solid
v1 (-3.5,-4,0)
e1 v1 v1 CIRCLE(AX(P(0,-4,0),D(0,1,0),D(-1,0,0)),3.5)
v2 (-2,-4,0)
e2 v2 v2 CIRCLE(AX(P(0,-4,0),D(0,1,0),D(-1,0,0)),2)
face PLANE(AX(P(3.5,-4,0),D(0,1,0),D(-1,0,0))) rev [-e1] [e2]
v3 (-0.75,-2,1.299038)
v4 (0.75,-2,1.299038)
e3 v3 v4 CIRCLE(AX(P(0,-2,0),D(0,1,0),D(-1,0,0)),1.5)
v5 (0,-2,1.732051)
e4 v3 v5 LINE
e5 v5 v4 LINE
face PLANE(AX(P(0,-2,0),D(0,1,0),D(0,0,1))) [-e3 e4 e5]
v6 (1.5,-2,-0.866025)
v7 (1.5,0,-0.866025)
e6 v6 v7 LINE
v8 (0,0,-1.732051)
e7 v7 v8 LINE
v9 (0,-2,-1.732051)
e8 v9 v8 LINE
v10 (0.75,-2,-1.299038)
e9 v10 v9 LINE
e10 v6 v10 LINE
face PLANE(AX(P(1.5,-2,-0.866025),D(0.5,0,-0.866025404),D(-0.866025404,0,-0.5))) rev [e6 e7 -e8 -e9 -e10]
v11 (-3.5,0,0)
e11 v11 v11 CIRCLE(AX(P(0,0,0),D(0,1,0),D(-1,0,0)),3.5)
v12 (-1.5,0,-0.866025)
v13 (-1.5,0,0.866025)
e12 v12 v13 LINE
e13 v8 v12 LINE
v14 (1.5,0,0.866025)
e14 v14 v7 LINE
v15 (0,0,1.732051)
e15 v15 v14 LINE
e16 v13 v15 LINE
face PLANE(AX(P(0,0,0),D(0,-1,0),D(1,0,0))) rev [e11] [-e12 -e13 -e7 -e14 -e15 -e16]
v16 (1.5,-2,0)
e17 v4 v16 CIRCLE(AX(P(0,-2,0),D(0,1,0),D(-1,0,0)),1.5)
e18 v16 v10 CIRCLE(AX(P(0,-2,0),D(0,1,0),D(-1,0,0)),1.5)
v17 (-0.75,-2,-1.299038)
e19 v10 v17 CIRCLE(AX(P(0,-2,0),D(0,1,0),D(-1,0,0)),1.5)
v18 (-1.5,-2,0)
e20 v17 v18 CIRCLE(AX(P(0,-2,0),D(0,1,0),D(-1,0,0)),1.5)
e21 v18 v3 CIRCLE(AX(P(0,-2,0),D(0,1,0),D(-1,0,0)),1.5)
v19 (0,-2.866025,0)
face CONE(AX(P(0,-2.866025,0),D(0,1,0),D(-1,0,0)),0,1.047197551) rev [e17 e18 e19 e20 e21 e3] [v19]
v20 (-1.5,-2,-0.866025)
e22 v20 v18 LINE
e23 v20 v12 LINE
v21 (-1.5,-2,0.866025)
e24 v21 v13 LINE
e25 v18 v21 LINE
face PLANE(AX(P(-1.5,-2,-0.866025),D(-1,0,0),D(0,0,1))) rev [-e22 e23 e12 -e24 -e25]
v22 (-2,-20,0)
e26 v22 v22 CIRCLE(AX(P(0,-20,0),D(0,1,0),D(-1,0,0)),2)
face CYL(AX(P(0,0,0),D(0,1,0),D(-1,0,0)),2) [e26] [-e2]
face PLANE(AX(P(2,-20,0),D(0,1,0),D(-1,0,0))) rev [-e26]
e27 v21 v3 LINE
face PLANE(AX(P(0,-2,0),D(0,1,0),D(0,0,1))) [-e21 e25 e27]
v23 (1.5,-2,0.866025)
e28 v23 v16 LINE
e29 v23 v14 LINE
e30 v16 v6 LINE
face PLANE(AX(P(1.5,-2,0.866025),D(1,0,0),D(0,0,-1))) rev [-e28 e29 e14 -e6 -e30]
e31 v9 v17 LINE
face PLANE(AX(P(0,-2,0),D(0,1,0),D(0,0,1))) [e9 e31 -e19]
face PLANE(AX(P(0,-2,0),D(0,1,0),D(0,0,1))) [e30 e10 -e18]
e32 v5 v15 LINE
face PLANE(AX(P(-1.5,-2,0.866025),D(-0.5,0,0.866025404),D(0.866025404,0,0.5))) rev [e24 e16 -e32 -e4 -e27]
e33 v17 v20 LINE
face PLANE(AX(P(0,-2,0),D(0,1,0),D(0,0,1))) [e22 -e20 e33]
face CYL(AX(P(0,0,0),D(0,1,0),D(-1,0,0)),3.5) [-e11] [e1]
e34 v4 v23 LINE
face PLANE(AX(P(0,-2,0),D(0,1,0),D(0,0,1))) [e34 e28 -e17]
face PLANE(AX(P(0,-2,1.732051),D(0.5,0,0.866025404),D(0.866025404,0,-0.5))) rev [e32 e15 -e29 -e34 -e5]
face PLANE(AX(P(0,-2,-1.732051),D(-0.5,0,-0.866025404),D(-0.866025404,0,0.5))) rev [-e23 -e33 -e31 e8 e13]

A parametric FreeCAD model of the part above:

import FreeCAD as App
import Part
import Sketcher

V = App.Vector
Q = App.Units.Quantity


def add_polygon(sketch, points):
    """Adds a closed chain of lines whose ends are joined by coincident constraints."""
    first, n = sketch.GeometryCount, len(points)
    for a, b in zip(points, points[1:] + points[:1]):
        sketch.addGeometry(Part.LineSegment(App.Vector(*a, 0), App.Vector(*b, 0)), False)
    for i in range(n):
        sketch.addConstraint(Sketcher.Constraint("Coincident", first + i, 2, first + (i + 1) % n, 1))

doc = App.newDocument("Part")
body = doc.addObject("PartDesign::Body", "Body")

# Sketch on XY plane
sketch1 = body.newObject("Sketcher::SketchObject", "Sketch")
sketch1.AttachmentSupport = (doc.getObject("XY_Plane"), [""])
sketch1.MapMode = "FlatFace"
add_polygon(sketch1, [(3.5, 0), (0, 0), (0, -20), (2, -20), (2, -4), (3.5, -4)])  # lines 0-5
sketch1.addConstraint([
    Sketcher.Constraint("Horizontal", 0),
    Sketcher.Constraint("Vertical", 1),
    Sketcher.Constraint("Horizontal", 2),
    Sketcher.Constraint("Vertical", 3),
    Sketcher.Constraint("Horizontal", 4),
    Sketcher.Constraint("Vertical", 5),
    Sketcher.Constraint("Coincident", 0, 2, -1, 1),
    Sketcher.Constraint("DistanceX", 2, 1, 2, 2, Q("2 mm")),
    Sketcher.Constraint("DistanceY", 1, 2, 1, 1, Q("20 mm")),
    Sketcher.Constraint("DistanceY", 3, 1, 3, 2, Q("16 mm")),
    Sketcher.Constraint("DistanceX", 0, 2, 0, 1, Q("3.5 mm")),
])
revolution = body.newObject("PartDesign::Revolution", "Revolution")
revolution.Profile = sketch1
revolution.ReferenceAxis = (sketch1, ["V_Axis"])
revolution.Angle = 360

# Sketch on XY plane
sketch2 = body.newObject("Sketcher::SketchObject", "Sketch001")
sketch2.AttachmentSupport = (doc.getObject("XY_Plane"), [""])
sketch2.MapMode = "FlatFace"
add_polygon(sketch2, [(1.5, -2), (1.5, 0), (0, 0), (0, -2.866025)])  # lines 0-3
sketch2.addConstraint([
    Sketcher.Constraint("Vertical", 0),
    Sketcher.Constraint("Horizontal", 1),
    Sketcher.Constraint("Vertical", 2),
    Sketcher.Constraint("Coincident", 1, 2, -1, 1),
    Sketcher.Constraint("DistanceY", 0, 1, 0, 2, Q("2 mm")),
    Sketcher.Constraint("Angle", 3, Q("30 deg")),
    Sketcher.Constraint("DistanceX", 1, 2, 1, 1, Q("1.5 mm")),
])
groove = body.newObject("PartDesign::Groove", "Groove")
groove.Profile = sketch2
groove.ReferenceAxis = (sketch2, ["V_Axis"])
groove.Angle = 360

# Sketch on XZ plane
sketch3 = body.newObject("Sketcher::SketchObject", "Sketch002")
sketch3.AttachmentSupport = (doc.getObject("XZ_Plane"), [""])
sketch3.MapMode = "FlatFace"
add_polygon(sketch3, [(0, -1.732051), (-1.5, -0.866025), (-1.5, 0.866025), (0, 1.732051), (1.5, 0.866025), (1.5, -0.866025)])  # lines 0-5
sketch3.addConstraint([
    Sketcher.Constraint("Vertical", 1),
    Sketcher.Constraint("Vertical", 4),
    Sketcher.Constraint("Symmetric", 0, 2, 3, 2, -1, 1),
    Sketcher.Constraint("Symmetric", 2, 2, 5, 2, -1, 1),
    Sketcher.Constraint("PointOnObject", 2, 2, -2),
    Sketcher.Constraint("Parallel", 2, 5),
    Sketcher.Constraint("Horizontal", 1, 2, 3, 2),
    Sketcher.Constraint("Angle", 0, Q("150 deg")),
    Sketcher.Constraint("DistanceX", 1, 2, 3, 2, Q("3 mm")),
    Sketcher.Constraint("DistanceY", 1, 1, 1, 2, Q("1.732051 mm")),
])
pocket1 = body.newObject("PartDesign::Pocket", "Pocket")
pocket1.Profile = sketch3
pocket1.Length = 2
pocket1.Reversed = True

doc.recompute()
